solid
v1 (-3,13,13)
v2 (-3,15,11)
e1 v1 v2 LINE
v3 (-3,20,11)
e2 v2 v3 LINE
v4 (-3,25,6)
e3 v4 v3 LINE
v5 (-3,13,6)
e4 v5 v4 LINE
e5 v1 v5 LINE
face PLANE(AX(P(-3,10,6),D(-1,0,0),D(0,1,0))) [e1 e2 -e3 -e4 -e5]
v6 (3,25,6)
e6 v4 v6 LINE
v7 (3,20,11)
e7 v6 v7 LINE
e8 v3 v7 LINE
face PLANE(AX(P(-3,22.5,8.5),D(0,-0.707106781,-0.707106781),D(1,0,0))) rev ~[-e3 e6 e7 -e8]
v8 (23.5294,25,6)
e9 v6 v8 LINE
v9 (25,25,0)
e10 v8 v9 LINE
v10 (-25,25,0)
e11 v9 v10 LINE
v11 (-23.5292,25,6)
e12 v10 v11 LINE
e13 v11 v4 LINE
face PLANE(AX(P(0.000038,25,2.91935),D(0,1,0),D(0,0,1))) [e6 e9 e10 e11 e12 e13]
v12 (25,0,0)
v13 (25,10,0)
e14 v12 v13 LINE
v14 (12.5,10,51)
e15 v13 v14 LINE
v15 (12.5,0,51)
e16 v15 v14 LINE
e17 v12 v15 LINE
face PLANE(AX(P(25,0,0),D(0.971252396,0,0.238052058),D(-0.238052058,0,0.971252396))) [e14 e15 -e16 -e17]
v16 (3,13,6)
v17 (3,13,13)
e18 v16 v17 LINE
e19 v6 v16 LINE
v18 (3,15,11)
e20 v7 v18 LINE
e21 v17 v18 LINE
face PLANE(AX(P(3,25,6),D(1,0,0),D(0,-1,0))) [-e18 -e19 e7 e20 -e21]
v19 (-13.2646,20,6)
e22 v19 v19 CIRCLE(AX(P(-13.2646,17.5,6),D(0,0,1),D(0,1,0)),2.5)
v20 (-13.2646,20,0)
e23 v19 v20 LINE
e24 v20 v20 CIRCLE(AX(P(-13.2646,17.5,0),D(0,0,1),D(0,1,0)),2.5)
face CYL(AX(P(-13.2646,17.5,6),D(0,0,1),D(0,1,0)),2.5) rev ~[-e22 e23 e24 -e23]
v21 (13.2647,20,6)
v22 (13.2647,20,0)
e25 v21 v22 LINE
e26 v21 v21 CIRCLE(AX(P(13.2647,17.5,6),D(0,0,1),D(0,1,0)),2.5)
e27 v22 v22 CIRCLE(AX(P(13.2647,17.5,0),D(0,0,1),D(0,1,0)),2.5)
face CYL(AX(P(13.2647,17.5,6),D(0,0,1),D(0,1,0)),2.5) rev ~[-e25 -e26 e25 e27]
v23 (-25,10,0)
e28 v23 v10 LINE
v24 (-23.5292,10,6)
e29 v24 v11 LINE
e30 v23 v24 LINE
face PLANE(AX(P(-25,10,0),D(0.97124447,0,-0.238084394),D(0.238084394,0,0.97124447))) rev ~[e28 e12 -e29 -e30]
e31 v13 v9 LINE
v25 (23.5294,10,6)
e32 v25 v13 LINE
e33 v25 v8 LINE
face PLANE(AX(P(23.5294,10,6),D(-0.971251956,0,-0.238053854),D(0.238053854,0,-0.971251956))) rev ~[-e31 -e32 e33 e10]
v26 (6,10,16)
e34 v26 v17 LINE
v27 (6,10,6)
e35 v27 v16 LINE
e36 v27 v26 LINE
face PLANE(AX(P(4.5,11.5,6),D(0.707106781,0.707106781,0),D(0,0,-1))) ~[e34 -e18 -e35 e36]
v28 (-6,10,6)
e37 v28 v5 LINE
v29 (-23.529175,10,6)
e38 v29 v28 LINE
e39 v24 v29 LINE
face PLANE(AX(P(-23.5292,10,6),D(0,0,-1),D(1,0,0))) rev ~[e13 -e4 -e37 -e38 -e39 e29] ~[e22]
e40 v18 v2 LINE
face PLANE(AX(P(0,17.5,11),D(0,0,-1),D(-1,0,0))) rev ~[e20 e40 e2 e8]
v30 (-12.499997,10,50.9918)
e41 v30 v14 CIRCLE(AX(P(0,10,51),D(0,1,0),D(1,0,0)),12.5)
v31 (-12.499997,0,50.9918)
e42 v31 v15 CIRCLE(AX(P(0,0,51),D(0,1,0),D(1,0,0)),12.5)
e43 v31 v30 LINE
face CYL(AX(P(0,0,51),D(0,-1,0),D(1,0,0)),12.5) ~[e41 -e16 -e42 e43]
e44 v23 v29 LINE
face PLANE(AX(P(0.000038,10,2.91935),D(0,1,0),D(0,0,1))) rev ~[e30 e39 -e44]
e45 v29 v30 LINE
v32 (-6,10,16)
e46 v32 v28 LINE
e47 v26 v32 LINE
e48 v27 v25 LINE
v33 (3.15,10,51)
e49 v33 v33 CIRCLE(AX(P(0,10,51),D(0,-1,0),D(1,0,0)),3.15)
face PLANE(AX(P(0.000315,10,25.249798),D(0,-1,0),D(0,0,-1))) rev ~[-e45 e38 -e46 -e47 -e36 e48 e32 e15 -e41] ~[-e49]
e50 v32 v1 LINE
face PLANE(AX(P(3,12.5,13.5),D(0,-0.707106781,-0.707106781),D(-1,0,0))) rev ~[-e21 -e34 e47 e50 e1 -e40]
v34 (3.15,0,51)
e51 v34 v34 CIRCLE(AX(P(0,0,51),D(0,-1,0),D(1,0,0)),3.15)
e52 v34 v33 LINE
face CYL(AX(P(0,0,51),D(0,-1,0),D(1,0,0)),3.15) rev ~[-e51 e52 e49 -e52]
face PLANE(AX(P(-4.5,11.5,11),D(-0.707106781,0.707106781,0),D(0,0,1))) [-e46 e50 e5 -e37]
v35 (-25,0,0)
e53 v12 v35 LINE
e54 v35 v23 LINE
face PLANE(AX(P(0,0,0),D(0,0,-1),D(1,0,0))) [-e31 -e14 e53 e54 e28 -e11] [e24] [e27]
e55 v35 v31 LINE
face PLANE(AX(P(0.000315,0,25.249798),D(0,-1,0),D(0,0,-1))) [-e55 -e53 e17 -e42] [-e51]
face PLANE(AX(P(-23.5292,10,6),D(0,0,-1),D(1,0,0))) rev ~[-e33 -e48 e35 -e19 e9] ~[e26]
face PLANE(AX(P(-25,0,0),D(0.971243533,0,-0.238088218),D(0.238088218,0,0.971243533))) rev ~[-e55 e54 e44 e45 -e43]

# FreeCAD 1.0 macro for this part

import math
import FreeCAD as App
import Part
import Sketcher

V = App.Vector


def edges_at(feature, points):
    """Names of the edges that pass closest to the given points."""
    edges = feature.Shape.Edges
    near = lambda p: min(range(len(edges)), key=lambda i: edges[i].distToShape(Part.Vertex(*p))[0])
    return sorted({f"Edge{near(p) + 1}" for p in points})


def add_polygon(sketch, points):
    """Adds a closed chain of lines whose ends are joined by coincident constraints."""
    first, n = sketch.GeometryCount, len(points)
    for a, b in zip(points, points[1:] + points[:1]):
        sketch.addGeometry(Part.LineSegment(App.Vector(*a, 0), App.Vector(*b, 0)), False)
    for i in range(n):
        sketch.addConstraint(Sketcher.Constraint("Coincident", first + i, 2, first + (i + 1) % n, 1))

doc = App.newDocument("Part")
body = doc.addObject("PartDesign::Body", "Body")

sketch1 = doc.addObject("Sketcher::SketchObject", "Sketch")
body.addObject(sketch1)
sketch1.AttachmentSupport = (doc.XZ_Plane, [""])
sketch1.MapMode = "FlatFace"
sketch1.addGeometry([
    Part.LineSegment(V(-25, 0, 0), V(25, 0, 0)),
    Part.LineSegment(V(25, 0, 0), V(12.5, 51, 0)),
    Part.ArcOfCircle(Part.Circle(V(0, 51, 0), V(0, 0, 1), 12.5), math.radians(0), math.radians(180)),
    Part.LineSegment(V(-12.5, 51, 0), V(-25, 0, 0)),
    Part.Circle(V(0, 51, 0), V(0, 0, 1), 3.1),
], False)
sketch1.addConstraint([
    Sketcher.Constraint("Coincident", 0, 2, 1, 1),
    Sketcher.Constraint("Coincident", 1, 2, 2, 1),
    Sketcher.Constraint("Coincident", 2, 2, 3, 1),
    Sketcher.Constraint("Coincident", 3, 2, 0, 1),
    Sketcher.Constraint("Horizontal", 0),
    Sketcher.Constraint("Coincident", 4, 3, 2, 3),
    Sketcher.Constraint("Symmetric", 0, 2, 3, 2, -1, 1),
    Sketcher.Constraint("PointOnObject", 2, 3, -2),
    Sketcher.Constraint("Horizontal", 4, 3, 1, 2),
    Sketcher.Constraint("Diameter", 4, 6.3),
    Sketcher.Constraint("Radius", 2, 12.5),
    Sketcher.Constraint("DistanceX", 0, 1, 0, 2, 50.0),
    Sketcher.Constraint("DistanceY", -1, 1, 2, 3, 51.0),
    Sketcher.Constraint("Distance", 3, 52.5016),
])
pad1 = doc.addObject("PartDesign::Pad", "Pad")
body.addObject(pad1)
pad1.Profile = sketch1
pad1.Length = 10
pad1.Reversed = True

sketch2 = doc.addObject("Sketcher::SketchObject", "Sketch001")
body.addObject(sketch2)
sketch2.AttachmentSupport = (doc.XZ_Plane, [""])
sketch2.MapMode = "FlatFace"
sketch2.AttachmentOffset = App.Placement(V(0, 0, -10), App.Rotation())
add_polygon(sketch2, [(-25, 0), (-24, 6), (24, 6), (25, 0)])
sketch2.addConstraint([
    Sketcher.Constraint("Horizontal", 1),
    Sketcher.Constraint("Horizontal", 3),
    Sketcher.Constraint("Symmetric", 2, 2, 3, 2, -1, 1),
    Sketcher.Constraint("Equal", 0, 2),
    Sketcher.Constraint("DistanceX", 3, 2, 3, 1, 50.0),
    Sketcher.Constraint("DistanceY", -1, 1, 0, 2, 6.0),
    Sketcher.Constraint("DistanceX", 1, 1, 1, 2, 47.0586),
])
pad2 = doc.addObject("PartDesign::Pad", "Pad001")
body.addObject(pad2)
pad2.Profile = sketch2
pad2.Length = 15
pad2.Reversed = True

sketch3 = doc.addObject("Sketcher::SketchObject", "Sketch002")
body.addObject(sketch3)
sketch3.AttachmentSupport = (doc.XY_Plane, [""])
sketch3.MapMode = "FlatFace"
sketch3.AttachmentOffset = App.Placement(V(0, 0, 6), App.Rotation())
add_polygon(sketch3, [(-3, 25), (-3, 10), (3, 10), (3, 25)])
sketch3.addConstraint([
    Sketcher.Constraint("Vertical", 0),
    Sketcher.Constraint("Horizontal", 1),
    Sketcher.Constraint("Vertical", 2),
    Sketcher.Constraint("Horizontal", 3),
    Sketcher.Constraint("DistanceX", 1, 1, 1, 2, 6.0),
    Sketcher.Constraint("DistanceY", 0, 2, 0, 1, 15.0),
    Sketcher.Constraint("DistanceX", 0, 2, -1, 1, 3.0),
    Sketcher.Constraint("DistanceY", -1, 1, 0, 2, 10.0),
])
pad3 = doc.addObject("PartDesign::Pad", "Pad002")
body.addObject(pad3)
pad3.Profile = sketch3
pad3.Length = 5
doc.recompute()

chamfer = doc.addObject("PartDesign::Chamfer", "Chamfer")
body.addObject(chamfer)
chamfer.Base = (pad3, edges_at(pad3, [(0, 10, 11), (0, 25, 11)]))
chamfer.Size = 5
doc.recompute()

chamfer2 = doc.addObject("PartDesign::Chamfer", "Chamfer001")
body.addObject(chamfer2)
chamfer2.Base = (chamfer, edges_at(chamfer, [(3, 10, 11), (-3, 10, 11)]))
chamfer2.Size = 3

sketch4 = doc.addObject("Sketcher::SketchObject", "Sketch003")
body.addObject(sketch4)
sketch4.AttachmentSupport = (doc.XY_Plane, [""])
sketch4.MapMode = "FlatFace"
sketch4.AttachmentOffset = App.Placement(V(0, 0, 6), App.Rotation())
sketch4.addGeometry([
    Part.Circle(V(13.3, 17.5, 0), V(0, 0, 1), 2.5),
    Part.Circle(V(-13.3, 17.5, 0), V(0, 0, 1), 2.5),
], False)
sketch4.addConstraint([
    Sketcher.Constraint("Equal", 0, 1),
    Sketcher.Constraint("Symmetric", 0, 3, 1, 3, -2),
    Sketcher.Constraint("Diameter", 0, 5.0),
    Sketcher.Constraint("DistanceY", -1, 1, 0, 3, 17.5),
    Sketcher.Constraint("DistanceX", -1, 1, 0, 3, 13.2647),
])
pocket1 = doc.addObject("PartDesign::Pocket", "Pocket")
body.addObject(pocket1)
pocket1.Profile = sketch4
pocket1.Type = "UpToFirst"

doc.recompute()
